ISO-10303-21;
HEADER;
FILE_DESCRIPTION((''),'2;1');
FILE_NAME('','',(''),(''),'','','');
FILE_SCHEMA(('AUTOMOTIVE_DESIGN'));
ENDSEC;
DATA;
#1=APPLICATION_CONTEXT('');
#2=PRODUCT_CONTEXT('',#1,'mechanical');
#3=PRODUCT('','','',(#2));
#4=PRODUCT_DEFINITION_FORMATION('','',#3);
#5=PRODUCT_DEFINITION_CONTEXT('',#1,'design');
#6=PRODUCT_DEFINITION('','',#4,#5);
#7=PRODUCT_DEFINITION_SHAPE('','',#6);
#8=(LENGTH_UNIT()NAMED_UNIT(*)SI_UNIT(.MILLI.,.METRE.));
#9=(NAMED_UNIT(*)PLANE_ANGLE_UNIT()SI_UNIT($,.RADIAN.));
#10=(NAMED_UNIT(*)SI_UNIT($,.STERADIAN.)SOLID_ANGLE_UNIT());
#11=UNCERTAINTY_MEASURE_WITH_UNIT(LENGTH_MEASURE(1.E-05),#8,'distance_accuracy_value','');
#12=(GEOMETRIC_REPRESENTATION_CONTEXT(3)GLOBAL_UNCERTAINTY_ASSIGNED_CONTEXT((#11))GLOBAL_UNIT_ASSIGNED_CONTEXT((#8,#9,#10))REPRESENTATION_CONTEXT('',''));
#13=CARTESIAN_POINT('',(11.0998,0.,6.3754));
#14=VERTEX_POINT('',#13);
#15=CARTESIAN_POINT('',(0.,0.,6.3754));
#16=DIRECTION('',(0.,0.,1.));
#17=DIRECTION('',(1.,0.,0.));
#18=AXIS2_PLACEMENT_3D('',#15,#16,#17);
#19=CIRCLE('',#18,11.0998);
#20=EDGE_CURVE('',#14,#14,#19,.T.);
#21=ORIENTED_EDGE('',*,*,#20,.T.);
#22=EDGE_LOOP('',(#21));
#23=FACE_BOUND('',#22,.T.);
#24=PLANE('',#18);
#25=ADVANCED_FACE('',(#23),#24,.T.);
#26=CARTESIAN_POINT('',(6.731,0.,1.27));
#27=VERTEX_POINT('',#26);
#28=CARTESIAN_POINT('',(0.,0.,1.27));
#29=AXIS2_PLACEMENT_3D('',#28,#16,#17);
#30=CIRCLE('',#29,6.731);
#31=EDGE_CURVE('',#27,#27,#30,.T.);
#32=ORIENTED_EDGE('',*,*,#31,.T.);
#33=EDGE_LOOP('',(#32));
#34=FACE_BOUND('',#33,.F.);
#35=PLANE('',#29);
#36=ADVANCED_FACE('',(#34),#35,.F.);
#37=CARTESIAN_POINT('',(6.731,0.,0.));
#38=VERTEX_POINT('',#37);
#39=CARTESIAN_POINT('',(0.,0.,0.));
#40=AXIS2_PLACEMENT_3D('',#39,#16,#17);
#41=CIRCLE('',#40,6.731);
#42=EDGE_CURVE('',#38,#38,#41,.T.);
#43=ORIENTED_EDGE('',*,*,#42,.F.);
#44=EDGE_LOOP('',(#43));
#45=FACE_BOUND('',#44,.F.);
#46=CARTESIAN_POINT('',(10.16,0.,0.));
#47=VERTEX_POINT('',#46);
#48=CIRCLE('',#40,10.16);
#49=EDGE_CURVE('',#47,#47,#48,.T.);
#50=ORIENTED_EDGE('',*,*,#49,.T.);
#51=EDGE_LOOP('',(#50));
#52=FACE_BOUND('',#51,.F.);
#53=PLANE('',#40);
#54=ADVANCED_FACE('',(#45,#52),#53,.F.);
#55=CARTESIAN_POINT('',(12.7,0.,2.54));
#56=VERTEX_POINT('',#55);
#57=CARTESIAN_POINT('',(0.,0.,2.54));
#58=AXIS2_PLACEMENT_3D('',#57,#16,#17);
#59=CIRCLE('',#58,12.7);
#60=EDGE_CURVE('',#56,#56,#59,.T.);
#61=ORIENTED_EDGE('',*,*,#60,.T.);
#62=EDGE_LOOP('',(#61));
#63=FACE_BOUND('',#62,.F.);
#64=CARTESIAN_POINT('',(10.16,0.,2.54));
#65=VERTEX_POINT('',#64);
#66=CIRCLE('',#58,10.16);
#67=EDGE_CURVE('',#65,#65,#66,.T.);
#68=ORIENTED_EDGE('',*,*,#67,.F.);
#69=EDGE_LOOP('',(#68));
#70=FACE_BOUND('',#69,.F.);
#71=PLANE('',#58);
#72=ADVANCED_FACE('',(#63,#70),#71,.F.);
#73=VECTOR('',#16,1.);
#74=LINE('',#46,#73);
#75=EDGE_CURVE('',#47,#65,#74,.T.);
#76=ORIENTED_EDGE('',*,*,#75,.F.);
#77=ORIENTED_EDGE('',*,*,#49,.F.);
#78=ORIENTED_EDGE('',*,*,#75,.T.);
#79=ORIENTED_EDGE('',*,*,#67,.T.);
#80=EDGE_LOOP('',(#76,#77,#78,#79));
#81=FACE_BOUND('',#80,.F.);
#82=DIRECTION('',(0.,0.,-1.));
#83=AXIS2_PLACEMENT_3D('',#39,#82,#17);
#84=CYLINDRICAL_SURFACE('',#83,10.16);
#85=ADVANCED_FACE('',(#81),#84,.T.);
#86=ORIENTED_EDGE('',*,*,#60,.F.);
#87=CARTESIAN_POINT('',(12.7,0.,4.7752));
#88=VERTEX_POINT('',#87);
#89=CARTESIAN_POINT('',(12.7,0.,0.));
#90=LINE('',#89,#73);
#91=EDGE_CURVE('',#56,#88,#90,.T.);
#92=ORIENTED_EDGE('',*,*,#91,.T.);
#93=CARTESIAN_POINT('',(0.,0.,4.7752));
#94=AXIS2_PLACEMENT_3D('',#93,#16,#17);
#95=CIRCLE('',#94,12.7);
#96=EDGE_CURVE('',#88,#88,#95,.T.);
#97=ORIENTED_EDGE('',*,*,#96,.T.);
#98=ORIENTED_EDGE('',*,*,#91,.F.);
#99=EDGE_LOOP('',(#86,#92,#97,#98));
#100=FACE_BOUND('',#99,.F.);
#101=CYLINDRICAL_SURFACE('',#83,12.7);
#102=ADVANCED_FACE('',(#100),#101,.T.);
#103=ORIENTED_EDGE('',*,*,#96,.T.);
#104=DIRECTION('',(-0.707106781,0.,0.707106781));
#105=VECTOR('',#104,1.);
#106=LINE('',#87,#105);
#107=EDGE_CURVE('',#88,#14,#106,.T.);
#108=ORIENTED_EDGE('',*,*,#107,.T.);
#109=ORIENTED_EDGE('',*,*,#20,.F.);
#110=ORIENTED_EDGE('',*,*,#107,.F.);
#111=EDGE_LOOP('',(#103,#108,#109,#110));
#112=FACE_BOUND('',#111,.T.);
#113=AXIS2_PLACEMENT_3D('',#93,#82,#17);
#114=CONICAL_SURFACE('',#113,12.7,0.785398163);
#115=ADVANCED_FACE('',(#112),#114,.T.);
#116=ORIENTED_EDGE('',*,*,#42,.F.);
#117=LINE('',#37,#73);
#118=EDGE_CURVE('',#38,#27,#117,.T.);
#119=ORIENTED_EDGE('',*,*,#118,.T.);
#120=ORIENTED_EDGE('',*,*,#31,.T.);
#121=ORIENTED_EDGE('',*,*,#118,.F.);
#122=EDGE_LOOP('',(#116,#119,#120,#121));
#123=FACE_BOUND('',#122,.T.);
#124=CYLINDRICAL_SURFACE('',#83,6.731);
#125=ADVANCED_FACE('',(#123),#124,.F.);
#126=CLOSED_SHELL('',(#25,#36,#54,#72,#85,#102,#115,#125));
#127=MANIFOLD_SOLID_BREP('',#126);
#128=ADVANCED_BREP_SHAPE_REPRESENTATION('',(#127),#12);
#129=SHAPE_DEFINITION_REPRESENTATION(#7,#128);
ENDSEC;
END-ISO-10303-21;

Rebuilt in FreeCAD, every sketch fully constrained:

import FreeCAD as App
import Part
import Sketcher

V = App.Vector
Q = App.Units.Quantity


def edges_at(feature, points):
    """Names of the edges that pass closest to the given points."""
    edges = feature.Shape.Edges
    near = lambda p: min(range(len(edges)), key=lambda i: edges[i].distToShape(Part.Vertex(*p))[0])
    return sorted({f"Edge{near(p) + 1}" for p in points})

doc = App.newDocument("Part")
body = doc.addObject("PartDesign::Body", "Body")

# Sketch on XY plane
sketch1 = body.newObject("Sketcher::SketchObject", "Sketch")
sketch1.AttachmentSupport = (doc.getObject("XY_Plane"), [""])
sketch1.MapMode = "FlatFace"
sketch1.addGeometry(Part.Circle(V(0, 0, 0), V(0, 0, 1), 13), False)
sketch1.addConstraint(Sketcher.Constraint("Coincident", 0, 3, -1, 1))
sketch1.addConstraint(Sketcher.Constraint("Diameter", 0, Q("1 in")))
pad1 = body.newObject("PartDesign::Pad", "Pad")
pad1.Profile = sketch1
pad1.Length = Q("0.251 in")

# Sketch on XY plane
sketch2 = body.newObject("Sketcher::SketchObject", "Sketch001")
sketch2.AttachmentSupport = (doc.getObject("XY_Plane"), [""])
sketch2.MapMode = "FlatFace"
sketch2.addGeometry(Part.Circle(V(0, 0, 0), V(0, 0, 1), 13), False)
sketch2.addGeometry(Part.Circle(V(0, 0, 0), V(0, 0, 1), 10), False)
sketch2.addConstraint(Sketcher.Constraint("Coincident", 0, 3, -1, 1))
sketch2.addConstraint(Sketcher.Constraint("Coincident", 1, 3, -1, 1))
sketch2.addConstraint(Sketcher.Constraint("Diameter", 0, Q("1 in")))
sketch2.addConstraint(Sketcher.Constraint("Diameter", 1, Q("0.8 in")))
pocket1 = body.newObject("PartDesign::Pocket", "Pocket")
pocket1.Profile = sketch2
pocket1.Length = Q("0.1 in")
pocket1.Reversed = True

# Sketch on XY plane
sketch3 = body.newObject("Sketcher::SketchObject", "Sketch002")
sketch3.AttachmentSupport = (doc.getObject("XY_Plane"), [""])
sketch3.MapMode = "FlatFace"
sketch3.addGeometry(Part.Circle(V(0, 0, 0), V(0, 0, 1), 7), False)
sketch3.addConstraint(Sketcher.Constraint("Coincident", 0, 3, -1, 1))
sketch3.addConstraint(Sketcher.Constraint("Diameter", 0, Q("0.53 in")))
pocket2 = body.newObject("PartDesign::Pocket", "Pocket001")
pocket2.Profile = sketch3
pocket2.Length = Q("0.05 in")
pocket2.Reversed = True
doc.recompute()

chamfer = body.newObject("PartDesign::Chamfer", "Chamfer")
chamfer.Base = (pocket2, edges_at(pocket2, [(-12.7, 0, 6.375)]))
chamfer.Size = Q("0.063 in")

doc.recompute()
